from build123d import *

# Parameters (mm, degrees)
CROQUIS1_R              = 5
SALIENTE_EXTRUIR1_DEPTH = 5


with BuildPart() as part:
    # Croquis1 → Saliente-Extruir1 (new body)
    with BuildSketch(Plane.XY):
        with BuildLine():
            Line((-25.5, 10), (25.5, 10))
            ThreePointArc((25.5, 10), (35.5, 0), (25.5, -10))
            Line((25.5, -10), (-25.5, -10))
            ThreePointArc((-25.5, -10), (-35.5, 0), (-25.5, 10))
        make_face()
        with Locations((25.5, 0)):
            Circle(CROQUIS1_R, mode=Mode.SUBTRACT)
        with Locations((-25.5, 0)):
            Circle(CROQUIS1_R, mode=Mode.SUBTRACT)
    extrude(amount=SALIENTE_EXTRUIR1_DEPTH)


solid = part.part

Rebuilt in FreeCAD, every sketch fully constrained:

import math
import FreeCAD as App
import Part
import Sketcher

doc = App.newDocument("Part")
body = doc.addObject("PartDesign::Body", "Body")

# Sketch on XY plane
sketch1 = doc.addObject("Sketcher::SketchObject", "Sketch")
body.addObject(sketch1)
sketch1.AttachmentSupport = (doc.XY_Plane, [""])
sketch1.MapMode = "FlatFace"
sketch1.addGeometry([
    Part.LineSegment(App.Vector(26, 10, 0), App.Vector(-26, 10, 0)),  # 0
    Part.ArcOfCircle(Part.Circle(App.Vector(-26, 0, 0), App.Vector(0, 0, 1), 10), math.radians(90), math.radians(270)),  # 1
    Part.LineSegment(App.Vector(-26, -10, 0), App.Vector(26, -10, 0)),  # 2
    Part.ArcOfCircle(Part.Circle(App.Vector(26, 0, 0), App.Vector(0, 0, 1), 10), math.radians(-90), math.radians(90)),  # 3
    Part.Circle(App.Vector(26, 0, 0), App.Vector(0, 0, 1), 5),  # 4
    Part.Circle(App.Vector(-26, 0, 0), App.Vector(0, 0, 1), 5),  # 5
], False)
sketch1.addConstraint([
    Sketcher.Constraint("Tangent", 0, 2, 1, 1),
    Sketcher.Constraint("Tangent", 1, 2, 2, 1),
    Sketcher.Constraint("Tangent", 2, 2, 3, 1),
    Sketcher.Constraint("Tangent", 3, 2, 0, 1),
    Sketcher.Constraint("Horizontal", 0),
    Sketcher.Constraint("Horizontal", 2),
    Sketcher.Constraint("Coincident", 4, 3, 3, 3),
    Sketcher.Constraint("Coincident", 5, 3, 1, 3),
    Sketcher.Constraint("Equal", 4, 5),
    Sketcher.Constraint("Symmetric", 1, 3, 3, 3, -1, 1),
    Sketcher.Constraint("Diameter", 4, 10.0),
    Sketcher.Constraint("Radius", 1, 10.0),
    Sketcher.Constraint("DistanceX", 0, 2, 0, 1, 51.0),
])
pad1 = doc.addObject("PartDesign::Pad", "Pad")
body.addObject(pad1)
pad1.Profile = sketch1
pad1.Length = 5

doc.recompute()
